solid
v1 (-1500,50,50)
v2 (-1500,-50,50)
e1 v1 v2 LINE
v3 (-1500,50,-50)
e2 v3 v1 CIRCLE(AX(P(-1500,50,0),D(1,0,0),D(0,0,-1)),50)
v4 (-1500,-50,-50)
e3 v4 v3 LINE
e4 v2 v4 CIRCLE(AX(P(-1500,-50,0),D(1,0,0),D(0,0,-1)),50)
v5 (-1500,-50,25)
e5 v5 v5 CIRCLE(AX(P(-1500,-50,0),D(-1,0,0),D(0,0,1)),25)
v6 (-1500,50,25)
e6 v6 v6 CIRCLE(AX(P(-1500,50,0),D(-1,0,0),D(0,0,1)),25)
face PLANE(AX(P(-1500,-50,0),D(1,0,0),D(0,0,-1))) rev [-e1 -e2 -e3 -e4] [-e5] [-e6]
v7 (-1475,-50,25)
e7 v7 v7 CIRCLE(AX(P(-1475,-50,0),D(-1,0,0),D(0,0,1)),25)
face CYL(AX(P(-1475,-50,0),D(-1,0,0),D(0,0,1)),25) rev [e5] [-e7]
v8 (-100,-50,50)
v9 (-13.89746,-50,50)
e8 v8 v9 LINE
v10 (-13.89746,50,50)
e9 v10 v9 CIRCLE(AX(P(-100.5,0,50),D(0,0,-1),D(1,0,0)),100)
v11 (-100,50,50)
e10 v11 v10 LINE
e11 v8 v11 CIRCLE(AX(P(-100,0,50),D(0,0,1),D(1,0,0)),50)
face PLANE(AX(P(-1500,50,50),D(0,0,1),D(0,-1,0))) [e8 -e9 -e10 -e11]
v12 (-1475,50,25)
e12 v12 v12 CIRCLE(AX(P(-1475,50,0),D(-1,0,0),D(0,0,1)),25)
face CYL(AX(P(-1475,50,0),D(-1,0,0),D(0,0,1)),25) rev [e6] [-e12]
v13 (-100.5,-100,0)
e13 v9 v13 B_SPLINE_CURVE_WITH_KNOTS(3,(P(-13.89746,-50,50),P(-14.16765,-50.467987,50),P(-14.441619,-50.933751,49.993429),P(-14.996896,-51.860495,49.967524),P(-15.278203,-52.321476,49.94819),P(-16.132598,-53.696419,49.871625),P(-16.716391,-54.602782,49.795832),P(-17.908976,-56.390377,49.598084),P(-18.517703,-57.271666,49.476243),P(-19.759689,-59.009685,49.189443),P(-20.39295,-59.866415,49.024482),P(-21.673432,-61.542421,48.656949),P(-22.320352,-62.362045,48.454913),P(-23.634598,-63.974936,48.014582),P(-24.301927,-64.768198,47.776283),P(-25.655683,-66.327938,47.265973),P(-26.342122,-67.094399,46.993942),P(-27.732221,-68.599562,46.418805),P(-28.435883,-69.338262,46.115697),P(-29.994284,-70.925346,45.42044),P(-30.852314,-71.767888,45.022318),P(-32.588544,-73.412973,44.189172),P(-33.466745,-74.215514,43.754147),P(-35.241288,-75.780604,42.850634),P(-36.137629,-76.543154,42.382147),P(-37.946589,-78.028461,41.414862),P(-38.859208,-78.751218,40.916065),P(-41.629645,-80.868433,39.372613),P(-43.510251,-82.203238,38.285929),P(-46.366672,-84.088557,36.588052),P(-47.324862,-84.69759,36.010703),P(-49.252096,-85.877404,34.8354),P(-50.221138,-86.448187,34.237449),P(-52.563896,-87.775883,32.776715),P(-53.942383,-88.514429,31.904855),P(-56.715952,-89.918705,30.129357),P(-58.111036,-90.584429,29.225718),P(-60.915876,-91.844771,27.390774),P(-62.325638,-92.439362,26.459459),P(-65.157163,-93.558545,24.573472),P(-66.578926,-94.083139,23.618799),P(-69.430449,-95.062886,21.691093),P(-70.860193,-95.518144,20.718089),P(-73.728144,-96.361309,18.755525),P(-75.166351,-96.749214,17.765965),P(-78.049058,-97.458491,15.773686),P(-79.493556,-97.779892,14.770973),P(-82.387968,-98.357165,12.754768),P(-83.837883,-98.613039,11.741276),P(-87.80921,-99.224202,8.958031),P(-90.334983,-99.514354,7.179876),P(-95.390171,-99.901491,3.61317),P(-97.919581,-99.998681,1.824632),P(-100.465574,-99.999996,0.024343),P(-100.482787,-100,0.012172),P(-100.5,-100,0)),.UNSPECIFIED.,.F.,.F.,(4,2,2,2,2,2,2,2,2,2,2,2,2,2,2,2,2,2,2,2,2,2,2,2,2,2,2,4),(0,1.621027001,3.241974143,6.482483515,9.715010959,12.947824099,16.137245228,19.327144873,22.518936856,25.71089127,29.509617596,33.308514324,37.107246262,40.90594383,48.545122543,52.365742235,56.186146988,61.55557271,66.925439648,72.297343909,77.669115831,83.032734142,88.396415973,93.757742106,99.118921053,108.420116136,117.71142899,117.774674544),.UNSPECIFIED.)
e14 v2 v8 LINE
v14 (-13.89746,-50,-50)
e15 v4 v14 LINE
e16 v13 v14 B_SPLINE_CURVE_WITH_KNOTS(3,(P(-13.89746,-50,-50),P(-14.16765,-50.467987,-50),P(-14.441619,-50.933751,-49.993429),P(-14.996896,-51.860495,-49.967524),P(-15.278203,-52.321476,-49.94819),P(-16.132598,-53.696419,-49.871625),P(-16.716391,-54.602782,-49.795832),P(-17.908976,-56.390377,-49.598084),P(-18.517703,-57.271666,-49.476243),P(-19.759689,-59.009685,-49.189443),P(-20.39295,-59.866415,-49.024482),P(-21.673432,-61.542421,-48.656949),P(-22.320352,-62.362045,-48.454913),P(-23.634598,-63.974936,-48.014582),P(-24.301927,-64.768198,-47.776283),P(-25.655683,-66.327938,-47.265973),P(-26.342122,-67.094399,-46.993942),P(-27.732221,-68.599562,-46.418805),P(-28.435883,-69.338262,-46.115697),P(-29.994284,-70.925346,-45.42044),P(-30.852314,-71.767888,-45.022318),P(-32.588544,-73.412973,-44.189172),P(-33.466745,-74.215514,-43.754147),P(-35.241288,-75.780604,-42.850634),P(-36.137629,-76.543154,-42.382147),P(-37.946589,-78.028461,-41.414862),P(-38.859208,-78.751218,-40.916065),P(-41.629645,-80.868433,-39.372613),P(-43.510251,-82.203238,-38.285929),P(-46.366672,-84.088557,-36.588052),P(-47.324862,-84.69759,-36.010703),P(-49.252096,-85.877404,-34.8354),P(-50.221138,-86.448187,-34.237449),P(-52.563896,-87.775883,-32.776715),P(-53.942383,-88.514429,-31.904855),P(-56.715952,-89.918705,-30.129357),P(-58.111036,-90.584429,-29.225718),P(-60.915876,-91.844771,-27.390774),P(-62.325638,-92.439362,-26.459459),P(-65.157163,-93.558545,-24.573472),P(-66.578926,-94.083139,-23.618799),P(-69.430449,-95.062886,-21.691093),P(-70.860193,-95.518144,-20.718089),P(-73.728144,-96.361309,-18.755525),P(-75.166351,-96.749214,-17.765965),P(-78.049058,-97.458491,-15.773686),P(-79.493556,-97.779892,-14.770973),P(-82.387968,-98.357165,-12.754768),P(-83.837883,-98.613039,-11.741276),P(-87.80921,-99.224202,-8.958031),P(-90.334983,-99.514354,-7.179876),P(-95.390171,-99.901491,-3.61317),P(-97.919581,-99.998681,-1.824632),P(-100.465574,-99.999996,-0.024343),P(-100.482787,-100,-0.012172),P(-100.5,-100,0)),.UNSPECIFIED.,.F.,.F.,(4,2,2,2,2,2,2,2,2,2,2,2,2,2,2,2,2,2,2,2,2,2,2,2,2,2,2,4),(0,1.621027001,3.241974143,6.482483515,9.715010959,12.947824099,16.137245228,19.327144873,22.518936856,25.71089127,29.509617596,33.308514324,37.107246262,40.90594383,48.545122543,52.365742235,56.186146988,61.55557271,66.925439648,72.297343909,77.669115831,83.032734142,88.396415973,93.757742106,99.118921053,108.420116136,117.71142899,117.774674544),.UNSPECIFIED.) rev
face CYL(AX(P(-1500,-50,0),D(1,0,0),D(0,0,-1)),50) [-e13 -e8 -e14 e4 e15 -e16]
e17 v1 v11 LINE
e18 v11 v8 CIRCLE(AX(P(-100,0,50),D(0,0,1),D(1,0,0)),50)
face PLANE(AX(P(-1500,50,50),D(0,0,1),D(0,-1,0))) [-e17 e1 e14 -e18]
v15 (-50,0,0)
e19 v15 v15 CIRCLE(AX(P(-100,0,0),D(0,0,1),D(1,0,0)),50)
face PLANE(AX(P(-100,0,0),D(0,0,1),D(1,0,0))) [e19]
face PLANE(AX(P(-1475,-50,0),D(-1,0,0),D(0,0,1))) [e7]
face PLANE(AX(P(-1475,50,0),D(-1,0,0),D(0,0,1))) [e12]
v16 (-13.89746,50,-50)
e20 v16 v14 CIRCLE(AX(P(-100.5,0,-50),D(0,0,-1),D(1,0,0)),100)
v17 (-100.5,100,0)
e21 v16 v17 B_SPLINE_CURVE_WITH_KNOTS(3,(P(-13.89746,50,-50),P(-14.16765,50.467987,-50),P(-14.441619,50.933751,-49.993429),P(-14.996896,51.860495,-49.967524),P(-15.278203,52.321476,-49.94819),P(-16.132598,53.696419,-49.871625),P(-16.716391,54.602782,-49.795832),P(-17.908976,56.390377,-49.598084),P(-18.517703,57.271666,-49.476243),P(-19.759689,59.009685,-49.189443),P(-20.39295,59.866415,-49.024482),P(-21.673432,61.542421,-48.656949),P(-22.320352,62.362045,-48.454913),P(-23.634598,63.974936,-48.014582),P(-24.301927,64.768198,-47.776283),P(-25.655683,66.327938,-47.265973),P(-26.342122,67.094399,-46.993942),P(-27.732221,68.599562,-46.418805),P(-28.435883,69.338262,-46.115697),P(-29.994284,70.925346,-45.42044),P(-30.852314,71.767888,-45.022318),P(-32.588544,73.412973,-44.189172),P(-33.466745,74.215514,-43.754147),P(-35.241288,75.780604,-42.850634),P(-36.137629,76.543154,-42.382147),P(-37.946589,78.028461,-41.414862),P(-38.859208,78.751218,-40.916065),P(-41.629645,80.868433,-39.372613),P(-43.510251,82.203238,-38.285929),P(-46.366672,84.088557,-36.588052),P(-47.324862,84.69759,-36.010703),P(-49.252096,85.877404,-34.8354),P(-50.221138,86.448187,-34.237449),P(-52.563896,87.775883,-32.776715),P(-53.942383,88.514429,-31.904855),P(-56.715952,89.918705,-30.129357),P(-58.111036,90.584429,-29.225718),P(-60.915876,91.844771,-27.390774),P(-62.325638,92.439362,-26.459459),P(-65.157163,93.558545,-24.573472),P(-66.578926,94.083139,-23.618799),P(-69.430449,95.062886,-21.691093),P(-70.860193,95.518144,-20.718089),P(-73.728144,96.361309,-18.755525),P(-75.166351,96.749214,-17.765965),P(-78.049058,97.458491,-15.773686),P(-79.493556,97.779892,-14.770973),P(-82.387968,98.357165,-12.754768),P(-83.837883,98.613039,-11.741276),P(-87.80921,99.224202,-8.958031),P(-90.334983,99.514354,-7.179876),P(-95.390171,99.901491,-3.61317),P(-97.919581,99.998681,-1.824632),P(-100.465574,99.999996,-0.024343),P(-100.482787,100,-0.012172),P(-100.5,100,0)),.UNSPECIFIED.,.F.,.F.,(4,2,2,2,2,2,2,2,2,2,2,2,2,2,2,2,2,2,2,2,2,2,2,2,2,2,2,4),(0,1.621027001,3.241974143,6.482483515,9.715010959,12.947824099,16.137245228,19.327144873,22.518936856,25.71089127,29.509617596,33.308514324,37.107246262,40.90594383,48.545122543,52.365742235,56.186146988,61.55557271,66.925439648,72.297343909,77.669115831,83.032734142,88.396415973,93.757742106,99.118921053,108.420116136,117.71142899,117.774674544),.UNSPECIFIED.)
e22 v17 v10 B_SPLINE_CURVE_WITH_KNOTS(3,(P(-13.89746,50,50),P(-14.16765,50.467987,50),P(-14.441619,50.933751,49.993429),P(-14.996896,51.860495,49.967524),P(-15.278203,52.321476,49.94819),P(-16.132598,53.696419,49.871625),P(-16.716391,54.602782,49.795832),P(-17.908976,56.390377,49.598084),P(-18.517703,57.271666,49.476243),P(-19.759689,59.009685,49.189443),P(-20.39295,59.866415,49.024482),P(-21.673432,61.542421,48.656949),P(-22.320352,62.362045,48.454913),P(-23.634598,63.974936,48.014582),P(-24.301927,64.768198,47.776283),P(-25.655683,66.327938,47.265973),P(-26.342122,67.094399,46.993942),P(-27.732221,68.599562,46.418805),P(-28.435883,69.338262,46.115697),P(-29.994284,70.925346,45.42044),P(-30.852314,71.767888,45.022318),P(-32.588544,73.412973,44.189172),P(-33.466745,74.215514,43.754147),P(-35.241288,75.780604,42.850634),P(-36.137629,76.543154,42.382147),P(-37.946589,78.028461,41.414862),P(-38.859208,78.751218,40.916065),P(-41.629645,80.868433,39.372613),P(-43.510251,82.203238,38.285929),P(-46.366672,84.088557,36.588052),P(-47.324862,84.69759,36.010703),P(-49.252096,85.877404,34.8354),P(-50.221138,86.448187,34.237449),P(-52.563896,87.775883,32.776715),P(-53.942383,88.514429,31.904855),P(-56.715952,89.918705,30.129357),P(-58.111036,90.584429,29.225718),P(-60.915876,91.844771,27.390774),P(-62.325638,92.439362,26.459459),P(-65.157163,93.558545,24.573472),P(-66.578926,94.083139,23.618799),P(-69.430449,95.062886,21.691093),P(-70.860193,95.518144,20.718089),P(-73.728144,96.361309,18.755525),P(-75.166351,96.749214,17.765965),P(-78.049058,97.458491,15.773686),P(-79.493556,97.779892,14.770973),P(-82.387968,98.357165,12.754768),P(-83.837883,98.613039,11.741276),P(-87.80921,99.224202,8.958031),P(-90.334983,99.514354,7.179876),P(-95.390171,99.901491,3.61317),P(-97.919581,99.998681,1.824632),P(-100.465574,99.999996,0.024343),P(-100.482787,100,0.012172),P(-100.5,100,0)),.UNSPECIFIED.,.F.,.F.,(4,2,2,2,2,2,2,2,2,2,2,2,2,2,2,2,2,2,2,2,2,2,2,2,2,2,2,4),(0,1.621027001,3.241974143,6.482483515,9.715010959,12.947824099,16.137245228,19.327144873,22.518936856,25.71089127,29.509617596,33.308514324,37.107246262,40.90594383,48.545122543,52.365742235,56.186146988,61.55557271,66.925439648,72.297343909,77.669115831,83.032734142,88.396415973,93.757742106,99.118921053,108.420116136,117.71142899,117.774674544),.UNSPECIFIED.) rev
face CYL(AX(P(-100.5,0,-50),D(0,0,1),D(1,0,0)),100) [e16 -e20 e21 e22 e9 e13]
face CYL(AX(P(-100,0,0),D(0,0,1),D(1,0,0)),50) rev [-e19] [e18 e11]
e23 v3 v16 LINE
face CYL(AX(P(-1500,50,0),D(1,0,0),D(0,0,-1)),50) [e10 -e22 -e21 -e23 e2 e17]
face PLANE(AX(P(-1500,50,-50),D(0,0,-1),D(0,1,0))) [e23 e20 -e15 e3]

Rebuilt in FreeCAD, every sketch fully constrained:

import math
import FreeCAD as App
import Part
import Sketcher

V = App.Vector

doc = App.newDocument("Part")
params = doc.addObject("Spreadsheet::Sheet", "Params")
for row, (alias, value) in enumerate([
    ("sketch1_radius", "50 mm"),
    ("sketch1_width", "100 mm"),
    ("pad1_length", "1500 mm"),
    ("sketch2_radius", "100 mm"),
    ("sketch2_width", "100.5 mm"),
    ("pocket1_length", "100 mm"),
    ("sketch3_diameter", "100 mm"),
    ("pocket2_length", "50 mm"),
    ("sketch4_diameter", "50 mm"),
    ("pocket3_length", "25 mm"),
], start=1):
    params.set(f"A{row}", alias)
    params.set(f"B{row}", "=" + value)
    params.setAlias(f"B{row}", alias)

body = doc.addObject("PartDesign::Body", "Body")

sketch1 = body.newObject("Sketcher::SketchObject", "Sketch")
sketch1.AttachmentSupport = (doc.getObject("YZ_Plane"), [""])
sketch1.MapMode = "FlatFace"
sketch1.addGeometry([
    Part.LineSegment(V(50, 50, 0), V(-50, 50, 0)),
    Part.ArcOfCircle(Part.Circle(V(-50, 0, 0), V(0, 0, 1), 50), math.radians(90), math.radians(270)),
    Part.LineSegment(V(-50, -50, 0), V(50, -50, 0)),
    Part.ArcOfCircle(Part.Circle(V(50, 0, 0), V(0, 0, 1), 50), math.radians(-90), math.radians(90)),
], False)
sketch1.addConstraint([
    Sketcher.Constraint("Tangent", 0, 2, 1, 1),
    Sketcher.Constraint("Tangent", 1, 2, 2, 1),
    Sketcher.Constraint("Tangent", 2, 2, 3, 1),
    Sketcher.Constraint("Tangent", 3, 2, 0, 1),
    Sketcher.Constraint("Horizontal", 0),
    Sketcher.Constraint("Horizontal", 2),
    Sketcher.Constraint("Symmetric", 1, 3, 3, 3, -1, 1),
    Sketcher.Constraint("Radius", 1, 50.0),
    Sketcher.Constraint("DistanceX", 0, 2, 0, 1, 100.0),
])
sketch1.setExpression("Constraints[7]", "Params.sketch1_radius")
sketch1.setExpression("Constraints[8]", "Params.sketch1_width")
pad1 = body.newObject("PartDesign::Pad", "Pad")
pad1.Profile = sketch1
pad1.setExpression("Length", "Params.pad1_length")
pad1.Reversed = True

sketch2 = body.newObject("Sketcher::SketchObject", "Sketch001")
sketch2.AttachmentSupport = (doc.getObject("XY_Plane"), [""])
sketch2.MapMode = "FlatFace"
sketch2.AttachmentOffset = App.Placement(V(0, 0, 50), App.Rotation())
sketch2.addGeometry([
    Part.LineSegment(V(0, 100, 0), V(-100.5, 100, 0)),
    Part.ArcOfCircle(Part.Circle(V(-100.5, 0, 0), V(0, 0, 1), 100), math.radians(-90), math.radians(90)),
    Part.LineSegment(V(-100.5, -100, 0), V(0, -100, 0)),
    Part.LineSegment(V(0, -100, 0), V(0, 100, 0)),
], False)
sketch2.addConstraint([
    Sketcher.Constraint("Tangent", 0, 2, 1, 2),
    Sketcher.Constraint("Tangent", 1, 1, 2, 1),
    Sketcher.Constraint("Coincident", 2, 2, 3, 1),
    Sketcher.Constraint("Coincident", 3, 2, 0, 1),
    Sketcher.Constraint("Horizontal", 0),
    Sketcher.Constraint("Horizontal", 2),
    Sketcher.Constraint("Vertical", 3),
    Sketcher.Constraint("Symmetric", 2, 2, 3, 2, -1, 1),
    Sketcher.Constraint("Radius", 1, 100.0),
    Sketcher.Constraint("DistanceX", 0, 2, 0, 1, 100.5),
])
sketch2.setExpression("Constraints[8]", "Params.sketch2_radius")
sketch2.setExpression("Constraints[9]", "Params.sketch2_width")
pocket1 = body.newObject("PartDesign::Pocket", "Pocket")
pocket1.Profile = sketch2
pocket1.setExpression("Length", "Params.pocket1_length")

sketch3 = body.newObject("Sketcher::SketchObject", "Sketch002")
sketch3.AttachmentSupport = (doc.getObject("XY_Plane"), [""])
sketch3.MapMode = "FlatFace"
sketch3.AttachmentOffset = App.Placement(V(0, 0, 50), App.Rotation())
sketch3.addGeometry(Part.Circle(V(-100, 0, 0), V(0, 0, 1), 50), False)
sketch3.addConstraint([
    Sketcher.Constraint("PointOnObject", 0, 3, -1),
    Sketcher.Constraint("Diameter", 0, 100.0),
    Sketcher.Constraint("DistanceX", 0, 3, -1, 1, 100.0),
])
sketch3.setExpression("Constraints[1]", "Params.sketch3_diameter")
pocket2 = body.newObject("PartDesign::Pocket", "Pocket001")
pocket2.Profile = sketch3
pocket2.setExpression("Length", "Params.pocket2_length")

sketch4 = body.newObject("Sketcher::SketchObject", "Sketch003")
sketch4.AttachmentSupport = (doc.getObject("YZ_Plane"), [""])
sketch4.MapMode = "FlatFace"
sketch4.AttachmentOffset = App.Placement(V(0, 0, -1500), App.Rotation())
sketch4.addGeometry([
    Part.Circle(V(50, 0, 0), V(0, 0, 1), 25),
    Part.Circle(V(-50, 0, 0), V(0, 0, 1), 25),
], False)
sketch4.addConstraint([
    Sketcher.Constraint("Equal", 0, 1),
    Sketcher.Constraint("Symmetric", 0, 3, 1, 3, -1, 1),
    Sketcher.Constraint("PointOnObject", 0, 3, -1),
    Sketcher.Constraint("Diameter", 0, 50.0),
    Sketcher.Constraint("DistanceX", -1, 1, 0, 3, 50.0),
])
sketch4.setExpression("Constraints[3]", "Params.sketch4_diameter")
pocket3 = body.newObject("PartDesign::Pocket", "Pocket002")
pocket3.Profile = sketch4
pocket3.setExpression("Length", "Params.pocket3_length")
pocket3.Reversed = True

doc.recompute()
